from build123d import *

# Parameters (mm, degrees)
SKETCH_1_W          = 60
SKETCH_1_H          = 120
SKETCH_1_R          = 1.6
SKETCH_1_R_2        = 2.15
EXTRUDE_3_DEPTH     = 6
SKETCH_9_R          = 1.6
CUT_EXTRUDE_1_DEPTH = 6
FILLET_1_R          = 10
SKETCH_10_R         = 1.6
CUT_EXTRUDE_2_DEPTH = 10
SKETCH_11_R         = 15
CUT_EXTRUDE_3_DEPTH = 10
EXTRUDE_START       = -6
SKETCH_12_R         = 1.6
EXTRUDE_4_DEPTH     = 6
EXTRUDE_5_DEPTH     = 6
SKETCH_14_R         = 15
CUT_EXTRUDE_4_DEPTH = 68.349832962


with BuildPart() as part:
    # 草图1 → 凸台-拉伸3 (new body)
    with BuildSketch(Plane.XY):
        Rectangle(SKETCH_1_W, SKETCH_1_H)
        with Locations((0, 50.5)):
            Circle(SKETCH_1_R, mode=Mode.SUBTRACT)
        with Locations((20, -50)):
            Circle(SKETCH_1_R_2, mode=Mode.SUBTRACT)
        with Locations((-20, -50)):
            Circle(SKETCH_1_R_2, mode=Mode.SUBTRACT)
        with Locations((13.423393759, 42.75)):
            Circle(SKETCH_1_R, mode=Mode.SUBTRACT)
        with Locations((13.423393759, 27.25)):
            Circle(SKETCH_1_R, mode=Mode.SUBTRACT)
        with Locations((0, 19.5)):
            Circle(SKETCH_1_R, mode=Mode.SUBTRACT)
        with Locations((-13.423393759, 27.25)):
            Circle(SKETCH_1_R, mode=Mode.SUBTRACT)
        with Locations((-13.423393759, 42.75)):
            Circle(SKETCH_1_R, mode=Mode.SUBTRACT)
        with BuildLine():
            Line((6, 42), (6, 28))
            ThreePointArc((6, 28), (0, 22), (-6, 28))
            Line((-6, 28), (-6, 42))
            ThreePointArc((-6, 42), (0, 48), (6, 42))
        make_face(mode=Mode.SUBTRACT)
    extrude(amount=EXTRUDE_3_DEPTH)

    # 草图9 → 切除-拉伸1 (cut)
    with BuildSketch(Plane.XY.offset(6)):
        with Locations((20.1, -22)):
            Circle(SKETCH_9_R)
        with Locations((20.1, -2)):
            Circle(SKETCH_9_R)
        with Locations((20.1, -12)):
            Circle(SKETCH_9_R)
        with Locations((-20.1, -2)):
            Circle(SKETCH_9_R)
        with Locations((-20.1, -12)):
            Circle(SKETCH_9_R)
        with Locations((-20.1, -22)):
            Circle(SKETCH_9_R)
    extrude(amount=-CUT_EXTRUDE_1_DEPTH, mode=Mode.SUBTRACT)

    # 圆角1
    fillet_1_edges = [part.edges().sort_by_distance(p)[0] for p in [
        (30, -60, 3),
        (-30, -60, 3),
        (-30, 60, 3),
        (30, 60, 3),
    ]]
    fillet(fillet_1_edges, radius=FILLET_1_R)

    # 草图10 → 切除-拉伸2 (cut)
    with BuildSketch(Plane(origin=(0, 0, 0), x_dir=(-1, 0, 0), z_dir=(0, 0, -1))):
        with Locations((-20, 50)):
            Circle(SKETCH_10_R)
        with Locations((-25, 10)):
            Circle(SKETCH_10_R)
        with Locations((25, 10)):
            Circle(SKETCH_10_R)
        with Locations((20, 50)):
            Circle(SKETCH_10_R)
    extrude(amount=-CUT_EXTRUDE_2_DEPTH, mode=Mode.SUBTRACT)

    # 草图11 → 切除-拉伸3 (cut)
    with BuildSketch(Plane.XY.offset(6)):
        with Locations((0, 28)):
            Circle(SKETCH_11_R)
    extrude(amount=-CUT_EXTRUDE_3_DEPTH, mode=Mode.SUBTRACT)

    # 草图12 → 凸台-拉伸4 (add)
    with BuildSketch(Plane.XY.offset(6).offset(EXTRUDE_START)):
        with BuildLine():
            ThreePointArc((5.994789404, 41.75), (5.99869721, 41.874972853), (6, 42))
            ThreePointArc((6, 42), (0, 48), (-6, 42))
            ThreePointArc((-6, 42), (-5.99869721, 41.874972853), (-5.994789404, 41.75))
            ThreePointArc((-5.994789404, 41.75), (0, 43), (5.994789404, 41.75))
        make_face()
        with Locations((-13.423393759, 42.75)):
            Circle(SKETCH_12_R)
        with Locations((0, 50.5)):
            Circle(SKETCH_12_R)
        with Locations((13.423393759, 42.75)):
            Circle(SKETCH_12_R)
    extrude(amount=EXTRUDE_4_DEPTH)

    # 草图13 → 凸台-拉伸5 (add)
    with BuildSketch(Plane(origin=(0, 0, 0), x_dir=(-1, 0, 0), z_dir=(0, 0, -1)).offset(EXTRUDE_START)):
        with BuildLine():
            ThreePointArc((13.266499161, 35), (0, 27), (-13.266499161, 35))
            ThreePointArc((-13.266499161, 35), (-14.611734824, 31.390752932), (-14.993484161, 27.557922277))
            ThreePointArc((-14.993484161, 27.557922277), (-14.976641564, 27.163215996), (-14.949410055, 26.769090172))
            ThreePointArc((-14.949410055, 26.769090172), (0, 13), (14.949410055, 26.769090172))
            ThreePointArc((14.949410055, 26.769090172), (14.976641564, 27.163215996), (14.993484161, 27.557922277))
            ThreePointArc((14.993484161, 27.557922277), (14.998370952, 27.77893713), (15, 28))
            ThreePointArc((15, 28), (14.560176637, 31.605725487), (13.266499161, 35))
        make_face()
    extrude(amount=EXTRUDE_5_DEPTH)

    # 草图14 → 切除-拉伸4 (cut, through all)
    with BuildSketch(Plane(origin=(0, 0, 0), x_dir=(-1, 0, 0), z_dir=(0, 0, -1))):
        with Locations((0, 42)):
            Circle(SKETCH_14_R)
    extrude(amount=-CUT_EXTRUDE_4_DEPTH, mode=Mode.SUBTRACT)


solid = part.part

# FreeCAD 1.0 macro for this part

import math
import FreeCAD as App
import Part
import Sketcher
Q = App.Units.Quantity


def edges_at(feature, points):
    """Names of the edges that pass closest to the given points."""
    edges = feature.Shape.Edges
    near = lambda p: min(range(len(edges)), key=lambda i: edges[i].distToShape(Part.Vertex(*p))[0])
    return sorted({f"Edge{near(p) + 1}" for p in points})


def add_polygon(sketch, points):
    """Adds a closed chain of lines whose ends are joined by coincident constraints."""
    first, n = sketch.GeometryCount, len(points)
    for a, b in zip(points, points[1:] + points[:1]):
        sketch.addGeometry(Part.LineSegment(App.Vector(*a, 0), App.Vector(*b, 0)), False)
    for i in range(n):
        sketch.addConstraint(Sketcher.Constraint("Coincident", first + i, 2, first + (i + 1) % n, 1))

doc = App.newDocument("Part")
body = doc.addObject("PartDesign::Body", "Body")

# Sketch on XY plane
sketch1 = body.newObject("Sketcher::SketchObject", "Sketch")
sketch1.AttachmentSupport = (doc.getObject("XY_Plane"), [""])
sketch1.MapMode = "FlatFace"
add_polygon(sketch1, [(-30, 60), (-30, -60), (30, -60), (30, 60)])  # lines 0-3
sketch1.addGeometry(Part.Circle(App.Vector(-20, -50, 0), App.Vector(0, 0, 1), 2.1), False)  # 4
sketch1.addGeometry(Part.Circle(App.Vector(20, -50, 0), App.Vector(0, 0, 1), 2.1), False)  # 5
sketch1.addGeometry(Part.Circle(App.Vector(-13.4, 27.2, 0), App.Vector(0, 0, 1), 1.6), False)  # 6
sketch1.addGeometry(Part.Circle(App.Vector(-13.4, 42.8, 0), App.Vector(0, 0, 1), 1.6), False)  # 7
sketch1.addGeometry(Part.Circle(App.Vector(0, 19.5, 0), App.Vector(0, 0, 1), 1.6), False)  # 8
sketch1.addGeometry(Part.ArcOfCircle(Part.Circle(App.Vector(0, 42, 0), App.Vector(0, 0, 1), 6), math.radians(0), math.radians(180)), False)  # 9
sketch1.addGeometry(Part.LineSegment(App.Vector(6, 42, 0), App.Vector(6, 28, 0)), False)  # 10
sketch1.addGeometry(Part.ArcOfCircle(Part.Circle(App.Vector(0, 28, 0), App.Vector(0, 0, 1), 6), math.radians(180), math.radians(360)), False)  # 11
sketch1.addGeometry(Part.LineSegment(App.Vector(-6, 28, 0), App.Vector(-6, 42, 0)), False)  # 12
sketch1.addGeometry(Part.Circle(App.Vector(0, 50.5, 0), App.Vector(0, 0, 1), 1.6), False)  # 13
sketch1.addGeometry(Part.Circle(App.Vector(13.4, 27.2, 0), App.Vector(0, 0, 1), 1.6), False)  # 14
sketch1.addGeometry(Part.Circle(App.Vector(13.4, 42.8, 0), App.Vector(0, 0, 1), 1.6), False)  # 15
sketch1.addConstraint([
    Sketcher.Constraint("Tangent", 9, 1, 10, 1),
    Sketcher.Constraint("Tangent", 10, 2, 11, 2),
    Sketcher.Constraint("Tangent", 11, 1, 12, 1),
    Sketcher.Constraint("Tangent", 12, 2, 9, 2),
    Sketcher.Constraint("Vertical", 0),
    Sketcher.Constraint("Horizontal", 1),
    Sketcher.Constraint("Vertical", 2),
    Sketcher.Constraint("Horizontal", 3),
    Sketcher.Constraint("Vertical", 10),
    Sketcher.Constraint("Vertical", 12),
    Sketcher.Constraint("Equal", 4, 5),
    Sketcher.Constraint("Equal", 6, 7),
    Sketcher.Constraint("Equal", 7, 8),
    Sketcher.Constraint("Equal", 8, 13),
    Sketcher.Constraint("Equal", 13, 14),
    Sketcher.Constraint("Equal", 14, 15),
    Sketcher.Constraint("Symmetric", 0, 2, 2, 2, -1, 1),
    Sketcher.Constraint("Symmetric", 4, 3, 5, 3, -2),
    Sketcher.Constraint("Symmetric", 6, 3, 14, 3, -2),
    Sketcher.Constraint("Symmetric", 7, 3, 15, 3, -2),
    Sketcher.Constraint("PointOnObject", 8, 3, -2),
    Sketcher.Constraint("PointOnObject", 9, 3, -2),
    Sketcher.Constraint("PointOnObject", 13, 3, -2),
    Sketcher.Constraint("Vertical", 6, 3, 7, 3),
    Sketcher.Constraint("Radius", 9, Q("6 mm")),
    Sketcher.Constraint("Diameter", 4, Q("4.3 mm")),
    Sketcher.Constraint("Diameter", 6, Q("3.2 mm")),
    Sketcher.Constraint("DistanceX", 1, 1, 1, 2, Q("60 mm")),
    Sketcher.Constraint("DistanceY", 0, 2, 0, 1, Q("120 mm")),
    Sketcher.Constraint("DistanceY", 10, 2, 10, 1, Q("14 mm")),
    Sketcher.Constraint("DistanceX", 4, 3, -1, 1, Q("20 mm")),
    Sketcher.Constraint("DistanceY", 4, 3, -1, 1, Q("50 mm")),
    Sketcher.Constraint("DistanceY", -1, 1, 9, 3, Q("42 mm")),
    Sketcher.Constraint("DistanceY", 8, 3, 13, 3, Q("31 mm")),
    Sketcher.Constraint("DistanceY", -1, 1, 8, 3, Q("19.5 mm")),
    Sketcher.Constraint("DistanceY", 6, 3, 7, 3, Q("15.5 mm")),
    Sketcher.Constraint("DistanceY", -1, 1, 6, 3, Q("27.25 mm")),
    Sketcher.Constraint("DistanceX", 6, 3, -1, 1, Q("13.423394 mm")),
])
pad1 = body.newObject("PartDesign::Pad", "Pad")
pad1.Profile = sketch1
pad1.Length = 6

# Sketch on XY plane
sketch2 = body.newObject("Sketcher::SketchObject", "Sketch001")
sketch2.AttachmentSupport = (doc.getObject("XY_Plane"), [""])
sketch2.MapMode = "FlatFace"
sketch2.AttachmentOffset = App.Placement(App.Vector(0, 0, 6), App.Rotation())
sketch2.addGeometry([
    Part.Circle(App.Vector(20.1, -22, 0), App.Vector(0, 0, 1), 1.6),  # 0
    Part.Circle(App.Vector(20.1, -2, 0), App.Vector(0, 0, 1), 1.6),  # 1
    Part.Circle(App.Vector(20.1, -12, 0), App.Vector(0, 0, 1), 1.6),  # 2
    Part.Circle(App.Vector(-20.1, -2, 0), App.Vector(0, 0, 1), 1.6),  # 3
    Part.Circle(App.Vector(-20.1, -12, 0), App.Vector(0, 0, 1), 1.6),  # 4
    Part.Circle(App.Vector(-20.1, -22, 0), App.Vector(0, 0, 1), 1.6),  # 5
], False)
sketch2.addConstraint([
    Sketcher.Constraint("Equal", 0, 1),
    Sketcher.Constraint("Equal", 1, 2),
    Sketcher.Constraint("Equal", 2, 3),
    Sketcher.Constraint("Equal", 3, 4),
    Sketcher.Constraint("Equal", 4, 5),
    Sketcher.Constraint("Symmetric", 1, 3, 3, 3, -2),
    Sketcher.Constraint("Symmetric", 2, 3, 4, 3, -2),
    Sketcher.Constraint("Symmetric", 0, 3, 5, 3, -2),
    Sketcher.Constraint("Vertical", 0, 3, 1, 3),
    Sketcher.Constraint("Vertical", 1, 3, 2, 3),
    Sketcher.Constraint("Diameter", 0, Q("3.2 mm")),
    Sketcher.Constraint("DistanceY", 0, 3, -1, 1, Q("22 mm")),
    Sketcher.Constraint("DistanceY", 1, 3, -1, 1, Q("2 mm")),
    Sketcher.Constraint("DistanceY", 2, 3, -1, 1, Q("12 mm")),
    Sketcher.Constraint("DistanceX", -1, 1, 0, 3, Q("20.1 mm")),
])
pocket1 = body.newObject("PartDesign::Pocket", "Pocket")
pocket1.Profile = sketch2
pocket1.Length = 6
doc.recompute()

fillet = body.newObject("PartDesign::Fillet", "Fillet")
fillet.Base = (pocket1, edges_at(pocket1, [
    (30, -60, 3),
    (-30, -60, 3),
    (-30, 60, 3),
    (30, 60, 3),
]))
fillet.Radius = 10

# Sketch on XY plane
sketch3 = body.newObject("Sketcher::SketchObject", "Sketch002")
sketch3.AttachmentSupport = (doc.getObject("XY_Plane"), [""])
sketch3.MapMode = "FlatFace"
sketch3.addGeometry([
    Part.Circle(App.Vector(20, 50, 0), App.Vector(0, 0, 1), 1.6),
    Part.Circle(App.Vector(25, 10, 0), App.Vector(0, 0, 1), 1.6),
    Part.Circle(App.Vector(-25, 10, 0), App.Vector(0, 0, 1), 1.6),
    Part.Circle(App.Vector(-20, 50, 0), App.Vector(0, 0, 1), 1.6),
], False)
sketch3.addConstraint([
    Sketcher.Constraint("Equal", 0, 1),
    Sketcher.Constraint("Equal", 1, 2),
    Sketcher.Constraint("Equal", 2, 3),
    Sketcher.Constraint("Symmetric", 1, 3, 2, 3, -2),
    Sketcher.Constraint("Symmetric", 0, 3, 3, 3, -2),
    Sketcher.Constraint("Diameter", 0, Q("3.2 mm")),
    Sketcher.Constraint("DistanceX", -1, 1, 0, 3, Q("20 mm")),
    Sketcher.Constraint("DistanceY", -1, 1, 0, 3, Q("50 mm")),
    Sketcher.Constraint("DistanceX", -1, 1, 1, 3, Q("25 mm")),
    Sketcher.Constraint("DistanceY", -1, 1, 1, 3, Q("10 mm")),
])
pocket2 = body.newObject("PartDesign::Pocket", "Pocket001")
pocket2.Profile = sketch3
pocket2.Length = 10
pocket2.Reversed = True

# Sketch on XY plane
sketch4 = body.newObject("Sketcher::SketchObject", "Sketch003")
sketch4.AttachmentSupport = (doc.getObject("XY_Plane"), [""])
sketch4.MapMode = "FlatFace"
sketch4.AttachmentOffset = App.Placement(App.Vector(0, 0, 6), App.Rotation())
sketch4.addGeometry(Part.Circle(App.Vector(0, 28, 0), App.Vector(0, 0, 1), 15), False)
sketch4.addConstraint([
    Sketcher.Constraint("PointOnObject", 0, 3, -2),
    Sketcher.Constraint("Diameter", 0, Q("30 mm")),
    Sketcher.Constraint("DistanceY", -1, 1, 0, 3, Q("28 mm")),
])
pocket3 = body.newObject("PartDesign::Pocket", "Pocket002")
pocket3.Profile = sketch4
pocket3.Length = 10

# Sketch on XY plane
sketch5 = body.newObject("Sketcher::SketchObject", "Sketch004")
sketch5.AttachmentSupport = (doc.getObject("XY_Plane"), [""])
sketch5.MapMode = "FlatFace"
sketch5.addGeometry([
    Part.ArcOfCircle(Part.Circle(App.Vector(0, 42, 0), App.Vector(0, 0, 1), 6), math.radians(-2.39), math.radians(0)),  # 0
    Part.ArcOfCircle(Part.Circle(App.Vector(0, 42, 0), App.Vector(0, 0, 1), 6), math.radians(0), math.radians(180)),  # 1
    Part.ArcOfCircle(Part.Circle(App.Vector(0, 42, 0), App.Vector(0, 0, 1), 6), math.radians(180), math.radians(182.39)),  # 2
    Part.ArcOfCircle(Part.Circle(App.Vector(0, 28, 0), App.Vector(0, 0, 1), 15), math.radians(66), math.radians(114)),  # 3
    Part.Circle(App.Vector(-13.42, 42.75, 0), App.Vector(0, 0, 1), 1.6),  # 4
    Part.Circle(App.Vector(0, 50.5, 0), App.Vector(0, 0, 1), 1.6),  # 5
    Part.Circle(App.Vector(13.42, 42.75, 0), App.Vector(0, 0, 1), 1.6),  # 6
], False)
sketch5.addConstraint([
    Sketcher.Constraint("Tangent", 0, 2, 1, 1),
    Sketcher.Constraint("Tangent", 1, 2, 2, 1),
    Sketcher.Constraint("Coincident", 2, 2, 3, 2),
    Sketcher.Constraint("Coincident", 3, 1, 0, 1),
    Sketcher.Constraint("Equal", 0, 2),
    Sketcher.Constraint("Equal", 4, 5),
    Sketcher.Constraint("Equal", 5, 6),
    Sketcher.Constraint("Symmetric", 4, 3, 6, 3, -2),
    Sketcher.Constraint("Symmetric", 0, 2, 1, 2, -2),
    Sketcher.Constraint("PointOnObject", 3, 3, -2),
    Sketcher.Constraint("PointOnObject", 5, 3, -2),
    Sketcher.Constraint("Horizontal", 2, 3, 0, 2),
    Sketcher.Constraint("Radius", 1, Q("6 mm")),
    Sketcher.Constraint("Radius", 3, Q("15 mm")),
    Sketcher.Constraint("Diameter", 4, Q("3.2 mm")),
    Sketcher.Constraint("DistanceY", -1, 1, 0, 3, Q("42 mm")),
    Sketcher.Constraint("DistanceY", -1, 1, 3, 3, Q("28 mm")),
    Sketcher.Constraint("DistanceY", 2, 2, 4, 3, Q("1 mm")),
    Sketcher.Constraint("DistanceY", -1, 1, 5, 3, Q("50.5 mm")),
    Sketcher.Constraint("Radius", 0, Q("5.999998 mm")),
    Sketcher.Constraint("DistanceX", 4, 3, 2, 3, Q("13.423392 mm")),
])
pad2 = body.newObject("PartDesign::Pad", "Pad001")
pad2.Profile = sketch5
pad2.Length = 6

# Sketch on XY plane
sketch6 = body.newObject("Sketcher::SketchObject", "Sketch005")
sketch6.AttachmentSupport = (doc.getObject("XY_Plane"), [""])
sketch6.MapMode = "FlatFace"
sketch6.AttachmentOffset = App.Placement(App.Vector(0, 0, 6), App.Rotation())
sketch6.addGeometry([
    Part.ArcOfCircle(Part.Circle(App.Vector(0, 42, 0), App.Vector(0, 0, 1), 15), math.radians(-152), math.radians(-28)),  # 0
    Part.ArcOfCircle(Part.Circle(App.Vector(0, 28, 0), App.Vector(0, 0, 1), 15), math.radians(-2), math.radians(28)),  # 1
    Part.ArcOfCircle(Part.Circle(App.Vector(0, 28, 0), App.Vector(0, 0, 1), 15), math.radians(-4.71), math.radians(-1.69)),  # 2
    Part.ArcOfCircle(Part.Circle(App.Vector(0, 28, 0), App.Vector(0, 0, 1), 15), math.radians(-175), math.radians(-5)),  # 3
    Part.ArcOfCircle(Part.Circle(App.Vector(0, 28, 0), App.Vector(0, 0, 1), 15), math.radians(-178.31), math.radians(-175.29)),  # 4
    Part.ArcOfCircle(Part.Circle(App.Vector(0, 28, 0), App.Vector(0, 0, 1), 15), math.radians(180), math.radians(181.69)),  # 5
    Part.ArcOfCircle(Part.Circle(App.Vector(0, 28, 0), App.Vector(0, 0, 1), 15), math.radians(152), math.radians(180)),  # 6
], False)
sketch6.addConstraint([
    Sketcher.Constraint("Coincident", 0, 2, 1, 2),
    Sketcher.Constraint("Tangent", 1, 1, 2, 2),
    Sketcher.Constraint("Tangent", 2, 1, 3, 2),
    Sketcher.Constraint("Tangent", 3, 1, 4, 2),
    Sketcher.Constraint("Tangent", 4, 1, 5, 2),
    Sketcher.Constraint("Tangent", 5, 1, 6, 2),
    Sketcher.Constraint("Coincident", 6, 1, 0, 1),
    Sketcher.Constraint("Coincident", 3, 3, 1, 3),
    Sketcher.Constraint("Coincident", 5, 3, 1, 3),
    Sketcher.Constraint("Equal", 0, 1),
    Sketcher.Constraint("Equal", 4, 6),
    Sketcher.Constraint("Symmetric", 2, 1, 3, 1, -2),
    Sketcher.Constraint("PointOnObject", 0, 3, -2),
    Sketcher.Constraint("Horizontal", 1, 1, 4, 1),
    Sketcher.Constraint("Horizontal", 6, 3, 5, 1),
    Sketcher.Constraint("Radius", 0, Q("15 mm")),
    Sketcher.Constraint("DistanceY", -1, 1, 0, 3, Q("42 mm")),
    Sketcher.Constraint("DistanceY", -1, 1, 1, 3, Q("28 mm")),
    Sketcher.Constraint("DistanceX", -1, 1, 2, 1, Q("14.94941 mm")),
    Sketcher.Constraint("DistanceX", -1, 1, 1, 1, Q("14.993484 mm")),
])
pad3 = body.newObject("PartDesign::Pad", "Pad002")
pad3.Profile = sketch6
pad3.Length = 6
pad3.Reversed = True

# Sketch on XY plane
sketch7 = body.newObject("Sketcher::SketchObject", "Sketch006")
sketch7.AttachmentSupport = (doc.getObject("XY_Plane"), [""])
sketch7.MapMode = "FlatFace"
sketch7.addGeometry(Part.Circle(App.Vector(0, 42, 0), App.Vector(0, 0, 1), 15), False)
sketch7.addConstraint([
    Sketcher.Constraint("PointOnObject", 0, 3, -2),
    Sketcher.Constraint("Diameter", 0, Q("30 mm")),
    Sketcher.Constraint("DistanceY", -1, 1, 0, 3, Q("42 mm")),
])
pocket4 = body.newObject("PartDesign::Pocket", "Pocket003")
pocket4.Profile = sketch7
pocket4.Type = "ThroughAll"
pocket4.Reversed = True

doc.recompute()
